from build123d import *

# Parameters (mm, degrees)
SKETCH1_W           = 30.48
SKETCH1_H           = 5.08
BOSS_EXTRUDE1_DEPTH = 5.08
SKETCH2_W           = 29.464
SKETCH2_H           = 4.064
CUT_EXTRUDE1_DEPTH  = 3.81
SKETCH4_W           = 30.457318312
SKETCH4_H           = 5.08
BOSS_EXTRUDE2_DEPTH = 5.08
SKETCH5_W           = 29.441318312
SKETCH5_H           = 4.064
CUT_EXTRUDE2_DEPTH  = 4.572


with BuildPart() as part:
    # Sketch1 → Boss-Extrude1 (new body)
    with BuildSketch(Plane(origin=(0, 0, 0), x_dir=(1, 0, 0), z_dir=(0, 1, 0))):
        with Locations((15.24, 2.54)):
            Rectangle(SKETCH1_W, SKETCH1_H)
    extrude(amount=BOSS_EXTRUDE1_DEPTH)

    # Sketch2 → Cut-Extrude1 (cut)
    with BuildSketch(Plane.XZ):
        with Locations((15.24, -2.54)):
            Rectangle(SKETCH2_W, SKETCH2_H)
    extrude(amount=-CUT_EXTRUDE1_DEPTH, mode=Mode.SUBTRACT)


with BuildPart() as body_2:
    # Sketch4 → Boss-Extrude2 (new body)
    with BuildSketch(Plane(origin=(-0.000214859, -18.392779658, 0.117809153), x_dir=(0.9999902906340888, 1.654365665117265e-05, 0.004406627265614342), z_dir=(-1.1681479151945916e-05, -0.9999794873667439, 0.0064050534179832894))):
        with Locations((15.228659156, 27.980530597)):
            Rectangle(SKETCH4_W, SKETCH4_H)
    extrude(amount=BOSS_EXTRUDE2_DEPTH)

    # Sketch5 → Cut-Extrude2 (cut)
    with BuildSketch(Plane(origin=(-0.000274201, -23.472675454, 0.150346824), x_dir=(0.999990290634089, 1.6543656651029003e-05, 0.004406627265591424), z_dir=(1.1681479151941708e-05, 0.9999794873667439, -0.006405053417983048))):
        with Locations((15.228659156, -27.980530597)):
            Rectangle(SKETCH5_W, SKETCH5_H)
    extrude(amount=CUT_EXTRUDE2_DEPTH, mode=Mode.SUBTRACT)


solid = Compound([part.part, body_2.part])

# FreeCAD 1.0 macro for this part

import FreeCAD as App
import Part
import Sketcher

V = App.Vector
Q = App.Units.Quantity


def add_polygon(sketch, points):
    """Adds a closed chain of lines whose ends are joined by coincident constraints."""
    first, n = sketch.GeometryCount, len(points)
    for a, b in zip(points, points[1:] + points[:1]):
        sketch.addGeometry(Part.LineSegment(App.Vector(*a, 0), App.Vector(*b, 0)), False)
    for i in range(n):
        sketch.addConstraint(Sketcher.Constraint("Coincident", first + i, 2, first + (i + 1) % n, 1))

doc = App.newDocument("Part")
body = doc.addObject("PartDesign::Body", "Body")

# Sketch on XZ plane
sketch1 = body.newObject("Sketcher::SketchObject", "Sketch")
sketch1.AttachmentSupport = (doc.getObject("XZ_Plane"), [""])
sketch1.MapMode = "FlatFace"
add_polygon(sketch1, [(0, -5), (0, 0), (30, 0), (30, -5)])  # lines 0-3
sketch1.addConstraint(Sketcher.Constraint("Vertical", 0))
sketch1.addConstraint(Sketcher.Constraint("Horizontal", 1))
sketch1.addConstraint(Sketcher.Constraint("Vertical", 2))
sketch1.addConstraint(Sketcher.Constraint("Horizontal", 3))
sketch1.addConstraint(Sketcher.Constraint("Coincident", 0, 2, -1, 1))
sketch1.addConstraint(Sketcher.Constraint("DistanceX", 1, 1, 1, 2, Q("1.2 in")))
sketch1.addConstraint(Sketcher.Constraint("DistanceY", 0, 1, 0, 2, Q("0.2 in")))
pad1 = body.newObject("PartDesign::Pad", "Pad")
pad1.Profile = sketch1
pad1.Length = Q("0.2 in")
pad1.Reversed = True

# Sketch on XZ plane
sketch2 = body.newObject("Sketcher::SketchObject", "Sketch001")
sketch2.AttachmentSupport = (doc.getObject("XZ_Plane"), [""])
sketch2.MapMode = "FlatFace"
add_polygon(sketch2, [(0.5, -0.5), (0.5, -4.6), (30, -4.6), (30, -0.5)])  # lines 0-3
sketch2.addConstraint(Sketcher.Constraint("Vertical", 0))
sketch2.addConstraint(Sketcher.Constraint("Horizontal", 1))
sketch2.addConstraint(Sketcher.Constraint("Vertical", 2))
sketch2.addConstraint(Sketcher.Constraint("Horizontal", 3))
sketch2.addConstraint(Sketcher.Constraint("DistanceX", 1, 1, 1, 2, Q("1.16 in")))
sketch2.addConstraint(Sketcher.Constraint("DistanceY", 0, 2, 0, 1, Q("0.16 in")))
sketch2.addConstraint(Sketcher.Constraint("DistanceX", -1, 1, 0, 2, Q("0.02 in")))
sketch2.addConstraint(Sketcher.Constraint("DistanceY", 0, 2, -1, 1, Q("0.18 in")))
pocket1 = body.newObject("PartDesign::Pocket", "Pocket")
pocket1.Profile = sketch2
pocket1.Length = Q("0.15 in")
body2 = doc.addObject("PartDesign::Body", "Body001")

# Sketch on an angled plane
sketch3 = body2.newObject("Sketcher::SketchObject", "Sketch002")
sketch3.Placement = App.Placement(V(-0.000215, -18.39278, 0.117809), App.Rotation(V(0.999990291, 0.000016544, 0.004406627), V(-0.004406643, 0.006405042, 0.999969778), V(-0.000011681, -0.999979487, 0.006405053), "ZXY"))
add_polygon(sketch3, [(0, 31), (0, 25), (30, 25), (30, 31)])  # lines 0-3
sketch3.addConstraint(Sketcher.Constraint("Vertical", 0))
sketch3.addConstraint(Sketcher.Constraint("Horizontal", 1))
sketch3.addConstraint(Sketcher.Constraint("Vertical", 2))
sketch3.addConstraint(Sketcher.Constraint("Horizontal", 3))
sketch3.addConstraint(Sketcher.Constraint("PointOnObject", 0, 2, -2))
sketch3.addConstraint(Sketcher.Constraint("DistanceY", 0, 2, 0, 1, Q("0.2 in")))
sketch3.addConstraint(Sketcher.Constraint("DistanceX", 1, 1, 1, 2, 30.457318))
sketch3.addConstraint(Sketcher.Constraint("DistanceY", -1, 1, 0, 2, 25.440531))
pad2 = body2.newObject("PartDesign::Pad", "Pad001")
pad2.Profile = sketch3
pad2.Length = Q("0.2 in")

# Sketch on an angled plane
sketch4 = body2.newObject("Sketcher::SketchObject", "Sketch003")
sketch4.Placement = App.Placement(V(-0.000274, -23.472675, 0.150347), App.Rotation(V(0.999990291, 0.000016544, 0.004406627), V(0.004406643, -0.006405042, -0.999969778), V(0.000011681, 0.999979487, -0.006405053), "ZXY"))
add_polygon(sketch4, [(0.5, -25.9), (0.5, -30), (29.9, -30), (29.9, -25.9)])  # lines 0-3
sketch4.addConstraint(Sketcher.Constraint("Vertical", 0))
sketch4.addConstraint(Sketcher.Constraint("Horizontal", 1))
sketch4.addConstraint(Sketcher.Constraint("Vertical", 2))
sketch4.addConstraint(Sketcher.Constraint("Horizontal", 3))
sketch4.addConstraint(Sketcher.Constraint("DistanceY", 0, 2, 0, 1, Q("0.16 in")))
sketch4.addConstraint(Sketcher.Constraint("DistanceX", -1, 1, 0, 2, Q("0.02 in")))
sketch4.addConstraint(Sketcher.Constraint("DistanceX", 1, 1, 1, 2, 29.441318))
sketch4.addConstraint(Sketcher.Constraint("DistanceY", 0, 2, -1, 1, 30.012531))
pocket2 = body2.newObject("PartDesign::Pocket", "Pocket001")
pocket2.Profile = sketch4
pocket2.Length = Q("0.18 in")
pocket2.Reversed = True

doc.recompute()
